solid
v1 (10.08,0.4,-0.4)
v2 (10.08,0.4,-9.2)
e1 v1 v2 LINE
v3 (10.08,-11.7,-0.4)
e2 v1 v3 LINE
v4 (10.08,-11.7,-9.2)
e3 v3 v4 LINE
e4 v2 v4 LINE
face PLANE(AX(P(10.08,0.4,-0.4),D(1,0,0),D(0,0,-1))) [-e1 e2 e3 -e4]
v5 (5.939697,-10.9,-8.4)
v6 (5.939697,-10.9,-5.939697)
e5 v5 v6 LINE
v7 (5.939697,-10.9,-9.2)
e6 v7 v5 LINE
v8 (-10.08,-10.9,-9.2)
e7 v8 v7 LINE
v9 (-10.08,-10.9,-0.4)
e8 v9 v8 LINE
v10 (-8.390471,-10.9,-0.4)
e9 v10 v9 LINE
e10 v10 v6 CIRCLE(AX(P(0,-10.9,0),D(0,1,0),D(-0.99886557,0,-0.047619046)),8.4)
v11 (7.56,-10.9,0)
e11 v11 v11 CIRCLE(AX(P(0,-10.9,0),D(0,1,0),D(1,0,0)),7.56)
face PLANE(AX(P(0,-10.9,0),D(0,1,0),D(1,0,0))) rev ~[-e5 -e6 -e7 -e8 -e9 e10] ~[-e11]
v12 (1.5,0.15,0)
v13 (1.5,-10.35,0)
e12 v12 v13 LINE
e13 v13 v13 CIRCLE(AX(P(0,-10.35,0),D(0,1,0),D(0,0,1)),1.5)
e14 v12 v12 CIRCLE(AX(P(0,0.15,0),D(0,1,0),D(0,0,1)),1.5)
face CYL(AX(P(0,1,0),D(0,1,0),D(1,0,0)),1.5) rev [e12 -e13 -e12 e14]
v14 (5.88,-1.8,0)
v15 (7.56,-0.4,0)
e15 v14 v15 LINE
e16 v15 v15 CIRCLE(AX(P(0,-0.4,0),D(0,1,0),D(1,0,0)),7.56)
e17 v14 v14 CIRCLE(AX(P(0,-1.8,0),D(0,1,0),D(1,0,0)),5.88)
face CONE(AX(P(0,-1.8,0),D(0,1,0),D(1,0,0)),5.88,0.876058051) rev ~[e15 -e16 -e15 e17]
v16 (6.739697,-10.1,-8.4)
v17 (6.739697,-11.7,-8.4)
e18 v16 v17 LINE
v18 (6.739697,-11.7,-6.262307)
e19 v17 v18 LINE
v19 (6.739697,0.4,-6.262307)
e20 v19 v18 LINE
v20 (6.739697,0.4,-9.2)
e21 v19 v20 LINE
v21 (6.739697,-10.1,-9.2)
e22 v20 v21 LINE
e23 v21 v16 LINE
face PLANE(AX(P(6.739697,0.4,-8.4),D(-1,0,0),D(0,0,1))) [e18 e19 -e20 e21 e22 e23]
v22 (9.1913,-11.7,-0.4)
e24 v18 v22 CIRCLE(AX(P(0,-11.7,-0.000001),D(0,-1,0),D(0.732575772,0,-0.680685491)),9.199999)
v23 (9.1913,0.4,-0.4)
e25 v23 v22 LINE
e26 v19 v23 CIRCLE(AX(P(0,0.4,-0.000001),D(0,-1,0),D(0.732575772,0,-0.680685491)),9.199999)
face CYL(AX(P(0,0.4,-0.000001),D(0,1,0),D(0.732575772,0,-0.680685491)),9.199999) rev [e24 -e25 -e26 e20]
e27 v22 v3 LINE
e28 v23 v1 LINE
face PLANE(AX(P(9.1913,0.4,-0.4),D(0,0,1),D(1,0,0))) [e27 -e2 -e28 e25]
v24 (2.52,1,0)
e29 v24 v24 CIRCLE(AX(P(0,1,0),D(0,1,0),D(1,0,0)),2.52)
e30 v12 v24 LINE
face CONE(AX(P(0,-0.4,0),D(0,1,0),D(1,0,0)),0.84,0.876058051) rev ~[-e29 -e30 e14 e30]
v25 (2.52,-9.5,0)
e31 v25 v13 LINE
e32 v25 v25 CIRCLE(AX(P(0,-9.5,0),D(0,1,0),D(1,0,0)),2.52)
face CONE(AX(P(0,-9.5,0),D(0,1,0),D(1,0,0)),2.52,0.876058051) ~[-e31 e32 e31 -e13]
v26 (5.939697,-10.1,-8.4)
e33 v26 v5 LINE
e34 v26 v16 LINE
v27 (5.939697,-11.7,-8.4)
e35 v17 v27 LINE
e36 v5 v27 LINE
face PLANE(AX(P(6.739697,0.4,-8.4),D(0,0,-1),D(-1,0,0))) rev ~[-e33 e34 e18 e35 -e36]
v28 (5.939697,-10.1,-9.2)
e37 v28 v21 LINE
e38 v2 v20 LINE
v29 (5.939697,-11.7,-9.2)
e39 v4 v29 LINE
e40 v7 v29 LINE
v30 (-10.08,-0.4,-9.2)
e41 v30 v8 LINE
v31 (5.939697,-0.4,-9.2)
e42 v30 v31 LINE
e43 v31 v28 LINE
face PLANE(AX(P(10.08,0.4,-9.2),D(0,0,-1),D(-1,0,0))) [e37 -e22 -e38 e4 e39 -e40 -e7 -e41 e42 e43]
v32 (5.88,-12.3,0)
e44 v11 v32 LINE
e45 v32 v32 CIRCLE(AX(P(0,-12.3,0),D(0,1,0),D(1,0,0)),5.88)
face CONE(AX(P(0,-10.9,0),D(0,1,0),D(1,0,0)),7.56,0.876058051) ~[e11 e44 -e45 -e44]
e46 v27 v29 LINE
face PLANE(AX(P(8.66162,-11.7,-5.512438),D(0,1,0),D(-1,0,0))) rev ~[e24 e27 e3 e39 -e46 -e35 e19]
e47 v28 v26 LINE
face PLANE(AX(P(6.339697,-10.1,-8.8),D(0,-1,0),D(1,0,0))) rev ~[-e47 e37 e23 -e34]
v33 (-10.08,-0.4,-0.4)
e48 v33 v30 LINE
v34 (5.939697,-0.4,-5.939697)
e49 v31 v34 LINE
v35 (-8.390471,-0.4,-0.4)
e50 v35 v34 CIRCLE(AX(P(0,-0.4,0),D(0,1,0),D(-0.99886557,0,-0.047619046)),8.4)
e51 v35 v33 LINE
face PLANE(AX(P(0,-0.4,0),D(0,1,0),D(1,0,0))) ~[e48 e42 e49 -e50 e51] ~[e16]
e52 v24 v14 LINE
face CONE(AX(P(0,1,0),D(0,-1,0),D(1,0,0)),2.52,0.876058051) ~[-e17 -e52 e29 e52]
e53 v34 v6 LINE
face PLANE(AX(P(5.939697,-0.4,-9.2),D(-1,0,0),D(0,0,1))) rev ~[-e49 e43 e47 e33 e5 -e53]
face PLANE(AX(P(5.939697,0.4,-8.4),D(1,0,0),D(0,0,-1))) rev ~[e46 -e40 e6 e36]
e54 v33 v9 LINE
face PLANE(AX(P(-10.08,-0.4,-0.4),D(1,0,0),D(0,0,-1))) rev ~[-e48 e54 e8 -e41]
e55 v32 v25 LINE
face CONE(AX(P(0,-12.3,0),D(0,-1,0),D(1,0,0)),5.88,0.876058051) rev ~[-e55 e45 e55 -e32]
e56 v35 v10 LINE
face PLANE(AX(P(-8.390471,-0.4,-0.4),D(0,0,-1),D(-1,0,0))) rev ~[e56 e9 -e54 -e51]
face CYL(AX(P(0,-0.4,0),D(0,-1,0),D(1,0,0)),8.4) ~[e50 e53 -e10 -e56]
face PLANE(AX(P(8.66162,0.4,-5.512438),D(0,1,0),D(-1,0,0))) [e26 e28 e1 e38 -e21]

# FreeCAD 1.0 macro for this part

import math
import FreeCAD as App
import Part
import Sketcher
from FreeCAD import Vector

doc = App.newDocument("Part")
params = doc.addObject("Spreadsheet::Sheet", "Params")
for row, (alias, value) in enumerate([
    ("sketch1_height", "10.5 mm"),
    ("sketch1_width", "0.84 mm"),
    ("revolution_angle", "360 deg"),
    ("sketch2_diameter", "3 mm"),
    ("pocket1_length", "21 mm"),
    ("sketch3_radius", "8.4 mm"),
    ("sketch3_height", "8.8 mm"),
    ("pad1_length", "10.5 mm"),
    ("sketch4_radius", "9.199999 mm"),
    ("sketch4_width", "0.8 mm"),
    ("sketch4_height", "8.8 mm"),
    ("pad2_length", "12.1 mm"),
    ("sketch5_width", "0.8 mm"),
    ("pocket2_length", "10.5 mm"),
], start=1):
    params.set(f"A{row}", alias)
    params.set(f"B{row}", "=" + value)
    params.setAlias(f"B{row}", alias)

body = doc.addObject("PartDesign::Body", "Body")

sketch1 = body.newObject("Sketcher::SketchObject", "Sketch")
sketch1.AttachmentSupport = (doc.getObject("XY_Plane"), [""])
sketch1.MapMode = "FlatFace"
sketch1.addGeometry([
    Part.LineSegment(Vector(0.84, -0.4, 0), Vector(0, -0.4, 0)),
    Part.LineSegment(Vector(0, -0.4, 0), Vector(0, -10.9, 0)),
    Part.LineSegment(Vector(0, -10.9, 0), Vector(0.84, -10.9, 0)),
    Part.LineSegment(Vector(0.84, -10.9, 0), Vector(2.52, -9.5, 0)),
    Part.LineSegment(Vector(2.52, -9.5, 0), Vector(5.88, -12.3, 0)),
    Part.LineSegment(Vector(5.88, -12.3, 0), Vector(7.56, -10.9, 0)),
    Part.LineSegment(Vector(7.56, -10.9, 0), Vector(8.4, -10.9, 0)),
    Part.LineSegment(Vector(8.4, -10.9, 0), Vector(8.4, -0.4, 0)),
    Part.LineSegment(Vector(8.4, -0.4, 0), Vector(7.56, -0.4, 0)),
    Part.LineSegment(Vector(7.56, -0.4, 0), Vector(5.88, -1.8, 0)),
    Part.LineSegment(Vector(5.88, -1.8, 0), Vector(2.52, 1, 0)),
    Part.LineSegment(Vector(2.52, 1, 0), Vector(0.84, -0.4, 0)),
], False)
sketch1.addConstraint([
    Sketcher.Constraint("Coincident", 0, 2, 1, 1),
    Sketcher.Constraint("Coincident", 1, 2, 2, 1),
    Sketcher.Constraint("Coincident", 2, 2, 3, 1),
    Sketcher.Constraint("Coincident", 3, 2, 4, 1),
    Sketcher.Constraint("Coincident", 4, 2, 5, 1),
    Sketcher.Constraint("Coincident", 5, 2, 6, 1),
    Sketcher.Constraint("Coincident", 6, 2, 7, 1),
    Sketcher.Constraint("Coincident", 7, 2, 8, 1),
    Sketcher.Constraint("Coincident", 8, 2, 9, 1),
    Sketcher.Constraint("Coincident", 9, 2, 10, 1),
    Sketcher.Constraint("Coincident", 10, 2, 11, 1),
    Sketcher.Constraint("Coincident", 11, 2, 0, 1),
    Sketcher.Constraint("Horizontal", 0),
    Sketcher.Constraint("Vertical", 1),
    Sketcher.Constraint("Horizontal", 2),
    Sketcher.Constraint("Horizontal", 6),
    Sketcher.Constraint("Vertical", 7),
    Sketcher.Constraint("Horizontal", 8),
    Sketcher.Constraint("PointOnObject", 0, 2, -2),
    Sketcher.Constraint("Parallel", 3, 5),
    Sketcher.Constraint("Parallel", 5, 9),
    Sketcher.Constraint("Parallel", 4, 10),
    Sketcher.Constraint("Parallel", 9, 11),
    Sketcher.Constraint("Horizontal", 2, 2, 5, 2),
    Sketcher.Constraint("Horizontal", 0, 2, 7, 2),
    Sketcher.Constraint("Vertical", 5, 2, 8, 2),
    Sketcher.Constraint("Vertical", 4, 2, 9, 2),
    Sketcher.Constraint("Vertical", 3, 2, 10, 2),
    Sketcher.Constraint("Equal", 2, 6),
    Sketcher.Constraint("Equal", 3, 5),
    Sketcher.Constraint("DistanceY", 1, 2, 1, 1, 10.5),
    Sketcher.Constraint("DistanceY", -1, 1, 10, 2, 1.0),
    Sketcher.Constraint("DistanceX", 0, 2, 0, 1, 0.84),
    Sketcher.Constraint("DistanceY", 0, 2, -1, 1, 0.4),
    Sketcher.Constraint("DistanceX", -1, 1, 6, 2, 8.4),
    Sketcher.Constraint("DistanceX", -1, 1, 3, 2, 2.52),
])
sketch1.setExpression("Constraints[30]", "Params.sketch1_height")
sketch1.setExpression("Constraints[32]", "Params.sketch1_width")
revolution = body.newObject("PartDesign::Revolution", "Revolution")
revolution.Profile = sketch1
revolution.ReferenceAxis = (sketch1, ["V_Axis"])
revolution.setExpression("Angle", "Params.revolution_angle")

sketch2 = body.newObject("Sketcher::SketchObject", "Sketch001")
sketch2.AttachmentSupport = (doc.getObject("XZ_Plane"), [""])
sketch2.MapMode = "FlatFace"
sketch2.AttachmentOffset = App.Placement(Vector(0, 0, -1), App.Rotation())
sketch2.addGeometry(Part.Circle(Vector(0, 0, 0), Vector(0, 0, 1), 1.5), False)
sketch2.addConstraint([
    Sketcher.Constraint("Coincident", 0, 3, -1, 1),
    Sketcher.Constraint("Diameter", 0, 3.0),
])
sketch2.setExpression("Constraints[1]", "Params.sketch2_diameter")
pocket1 = body.newObject("PartDesign::Pocket", "Pocket")
pocket1.Profile = sketch2
pocket1.setExpression("Length", "Params.pocket1_length")
pocket1.Reversed = True

sketch3 = body.newObject("Sketcher::SketchObject", "Sketch002")
sketch3.AttachmentSupport = (doc.getObject("XZ_Plane"), [""])
sketch3.MapMode = "FlatFace"
sketch3.AttachmentOffset = App.Placement(Vector(0, 0, 0.4), App.Rotation())
sketch3.addGeometry([
    Part.LineSegment(Vector(-10.08, -0.4, 0), Vector(-10.08, -9.2, 0)),
    Part.LineSegment(Vector(-10.08, -9.2, 0), Vector(5.939697, -9.2, 0)),
    Part.LineSegment(Vector(5.939697, -9.2, 0), Vector(5.939697, -5.939697, 0)),
    Part.ArcOfCircle(Part.Circle(Vector(0, 0, 0), Vector(0, 0, 1), 8.4), math.radians(-177.270595), math.radians(-45.000002)),
    Part.LineSegment(Vector(-8.390471, -0.4, 0), Vector(-10.08, -0.4, 0)),
], False)
sketch3.addConstraint([
    Sketcher.Constraint("Coincident", 0, 2, 1, 1),
    Sketcher.Constraint("Coincident", 1, 2, 2, 1),
    Sketcher.Constraint("Coincident", 2, 2, 3, 2),
    Sketcher.Constraint("Coincident", 3, 1, 4, 1),
    Sketcher.Constraint("Coincident", 4, 2, 0, 1),
    Sketcher.Constraint("Vertical", 0),
    Sketcher.Constraint("Horizontal", 1),
    Sketcher.Constraint("Vertical", 2),
    Sketcher.Constraint("Horizontal", 4),
    Sketcher.Constraint("Coincident", 3, 3, -1, 1),
    Sketcher.Constraint("Radius", 3, 8.4),
    Sketcher.Constraint("DistanceY", 0, 2, 0, 1, 8.8),
    Sketcher.Constraint("DistanceY", 0, 2, -1, 1, 9.2),
    Sketcher.Constraint("DistanceX", 0, 2, -1, 1, 10.08),
    Sketcher.Constraint("DistanceX", 1, 1, 1, 2, 16.019697),
])
sketch3.setExpression("Constraints[10]", "Params.sketch3_radius")
sketch3.setExpression("Constraints[11]", "Params.sketch3_height")
pad1 = body.newObject("PartDesign::Pad", "Pad")
pad1.Profile = sketch3
pad1.setExpression("Length", "Params.pad1_length")

sketch4 = body.newObject("Sketcher::SketchObject", "Sketch003")
sketch4.AttachmentSupport = (doc.getObject("XZ_Plane"), [""])
sketch4.MapMode = "FlatFace"
sketch4.AttachmentOffset = App.Placement(Vector(0, 0, -0.4), App.Rotation())
sketch4.addGeometry([
    Part.ArcOfCircle(Part.Circle(Vector(0, -0.000001, 0), Vector(0, 0, 1), 9.199999), math.radians(-42.897233), math.radians(-2.491901)),
    Part.LineSegment(Vector(6.739697, -6.262307, 0), Vector(6.739697, -8.4, 0)),
    Part.LineSegment(Vector(6.739697, -8.4, 0), Vector(5.939697, -8.4, 0)),
    Part.LineSegment(Vector(5.939697, -8.4, 0), Vector(5.939697, -9.2, 0)),
    Part.LineSegment(Vector(5.939697, -9.2, 0), Vector(10.08, -9.2, 0)),
    Part.LineSegment(Vector(10.08, -9.2, 0), Vector(10.08, -0.4, 0)),
    Part.LineSegment(Vector(10.08, -0.4, 0), Vector(9.1913, -0.4, 0)),
], False)
sketch4.addConstraint([
    Sketcher.Constraint("Coincident", 0, 1, 1, 1),
    Sketcher.Constraint("Coincident", 1, 2, 2, 1),
    Sketcher.Constraint("Coincident", 2, 2, 3, 1),
    Sketcher.Constraint("Coincident", 3, 2, 4, 1),
    Sketcher.Constraint("Coincident", 4, 2, 5, 1),
    Sketcher.Constraint("Coincident", 5, 2, 6, 1),
    Sketcher.Constraint("Coincident", 6, 2, 0, 2),
    Sketcher.Constraint("Vertical", 1),
    Sketcher.Constraint("Horizontal", 2),
    Sketcher.Constraint("Vertical", 3),
    Sketcher.Constraint("Horizontal", 4),
    Sketcher.Constraint("Vertical", 5),
    Sketcher.Constraint("Horizontal", 6),
    Sketcher.Constraint("Coincident", 0, 3, -1, 1),
    Sketcher.Constraint("Equal", 2, 3),
    Sketcher.Constraint("Radius", 0, 9.199999),
    Sketcher.Constraint("DistanceX", 2, 2, 2, 1, 0.8),
    Sketcher.Constraint("DistanceY", 5, 1, 5, 2, 8.8),
    Sketcher.Constraint("DistanceY", 1, 2, -1, 1, 8.4),
    Sketcher.Constraint("DistanceX", -1, 1, 4, 2, 10.08),
    Sketcher.Constraint("DistanceX", 4, 1, 4, 2, 4.140303),
])
sketch4.setExpression("Constraints[15]", "Params.sketch4_radius")
sketch4.setExpression("Constraints[16]", "Params.sketch4_width")
sketch4.setExpression("Constraints[17]", "Params.sketch4_height")
pad2 = body.newObject("PartDesign::Pad", "Pad001")
pad2.Profile = sketch4
pad2.setExpression("Length", "Params.pad2_length")

sketch5 = body.newObject("Sketcher::SketchObject", "Sketch004")
sketch5.AttachmentSupport = (doc.getObject("XZ_Plane"), [""])
sketch5.MapMode = "FlatFace"
sketch5.AttachmentOffset = App.Placement(Vector(0, 0, -0.4), App.Rotation())
sketch5.addGeometry([
    Part.LineSegment(Vector(5.939697, -8.4, 0), Vector(5.939697, -9.2, 0)),
    Part.LineSegment(Vector(5.939697, -9.2, 0), Vector(6.739697, -9.2, 0)),
    Part.LineSegment(Vector(6.739697, -9.2, 0), Vector(6.739697, -8.4, 0)),
    Part.LineSegment(Vector(6.739697, -8.4, 0), Vector(5.939697, -8.4, 0)),
], False)
sketch5.addConstraint([
    Sketcher.Constraint("Coincident", 0, 2, 1, 1),
    Sketcher.Constraint("Coincident", 1, 2, 2, 1),
    Sketcher.Constraint("Coincident", 2, 2, 3, 1),
    Sketcher.Constraint("Coincident", 3, 2, 0, 1),
    Sketcher.Constraint("Vertical", 0),
    Sketcher.Constraint("Horizontal", 1),
    Sketcher.Constraint("Vertical", 2),
    Sketcher.Constraint("Horizontal", 3),
    Sketcher.Constraint("Equal", 3, 0),
    Sketcher.Constraint("DistanceX", 1, 1, 1, 2, 0.8),
    Sketcher.Constraint("DistanceY", 0, 2, -1, 1, 9.2),
    Sketcher.Constraint("DistanceX", -1, 1, 0, 2, 5.939697),
])
sketch5.setExpression("Constraints[9]", "Params.sketch5_width")
pocket2 = body.newObject("PartDesign::Pocket", "Pocket001")
pocket2.Profile = sketch5
pocket2.setExpression("Length", "Params.pocket2_length")
pocket2.Reversed = True

doc.recompute()
